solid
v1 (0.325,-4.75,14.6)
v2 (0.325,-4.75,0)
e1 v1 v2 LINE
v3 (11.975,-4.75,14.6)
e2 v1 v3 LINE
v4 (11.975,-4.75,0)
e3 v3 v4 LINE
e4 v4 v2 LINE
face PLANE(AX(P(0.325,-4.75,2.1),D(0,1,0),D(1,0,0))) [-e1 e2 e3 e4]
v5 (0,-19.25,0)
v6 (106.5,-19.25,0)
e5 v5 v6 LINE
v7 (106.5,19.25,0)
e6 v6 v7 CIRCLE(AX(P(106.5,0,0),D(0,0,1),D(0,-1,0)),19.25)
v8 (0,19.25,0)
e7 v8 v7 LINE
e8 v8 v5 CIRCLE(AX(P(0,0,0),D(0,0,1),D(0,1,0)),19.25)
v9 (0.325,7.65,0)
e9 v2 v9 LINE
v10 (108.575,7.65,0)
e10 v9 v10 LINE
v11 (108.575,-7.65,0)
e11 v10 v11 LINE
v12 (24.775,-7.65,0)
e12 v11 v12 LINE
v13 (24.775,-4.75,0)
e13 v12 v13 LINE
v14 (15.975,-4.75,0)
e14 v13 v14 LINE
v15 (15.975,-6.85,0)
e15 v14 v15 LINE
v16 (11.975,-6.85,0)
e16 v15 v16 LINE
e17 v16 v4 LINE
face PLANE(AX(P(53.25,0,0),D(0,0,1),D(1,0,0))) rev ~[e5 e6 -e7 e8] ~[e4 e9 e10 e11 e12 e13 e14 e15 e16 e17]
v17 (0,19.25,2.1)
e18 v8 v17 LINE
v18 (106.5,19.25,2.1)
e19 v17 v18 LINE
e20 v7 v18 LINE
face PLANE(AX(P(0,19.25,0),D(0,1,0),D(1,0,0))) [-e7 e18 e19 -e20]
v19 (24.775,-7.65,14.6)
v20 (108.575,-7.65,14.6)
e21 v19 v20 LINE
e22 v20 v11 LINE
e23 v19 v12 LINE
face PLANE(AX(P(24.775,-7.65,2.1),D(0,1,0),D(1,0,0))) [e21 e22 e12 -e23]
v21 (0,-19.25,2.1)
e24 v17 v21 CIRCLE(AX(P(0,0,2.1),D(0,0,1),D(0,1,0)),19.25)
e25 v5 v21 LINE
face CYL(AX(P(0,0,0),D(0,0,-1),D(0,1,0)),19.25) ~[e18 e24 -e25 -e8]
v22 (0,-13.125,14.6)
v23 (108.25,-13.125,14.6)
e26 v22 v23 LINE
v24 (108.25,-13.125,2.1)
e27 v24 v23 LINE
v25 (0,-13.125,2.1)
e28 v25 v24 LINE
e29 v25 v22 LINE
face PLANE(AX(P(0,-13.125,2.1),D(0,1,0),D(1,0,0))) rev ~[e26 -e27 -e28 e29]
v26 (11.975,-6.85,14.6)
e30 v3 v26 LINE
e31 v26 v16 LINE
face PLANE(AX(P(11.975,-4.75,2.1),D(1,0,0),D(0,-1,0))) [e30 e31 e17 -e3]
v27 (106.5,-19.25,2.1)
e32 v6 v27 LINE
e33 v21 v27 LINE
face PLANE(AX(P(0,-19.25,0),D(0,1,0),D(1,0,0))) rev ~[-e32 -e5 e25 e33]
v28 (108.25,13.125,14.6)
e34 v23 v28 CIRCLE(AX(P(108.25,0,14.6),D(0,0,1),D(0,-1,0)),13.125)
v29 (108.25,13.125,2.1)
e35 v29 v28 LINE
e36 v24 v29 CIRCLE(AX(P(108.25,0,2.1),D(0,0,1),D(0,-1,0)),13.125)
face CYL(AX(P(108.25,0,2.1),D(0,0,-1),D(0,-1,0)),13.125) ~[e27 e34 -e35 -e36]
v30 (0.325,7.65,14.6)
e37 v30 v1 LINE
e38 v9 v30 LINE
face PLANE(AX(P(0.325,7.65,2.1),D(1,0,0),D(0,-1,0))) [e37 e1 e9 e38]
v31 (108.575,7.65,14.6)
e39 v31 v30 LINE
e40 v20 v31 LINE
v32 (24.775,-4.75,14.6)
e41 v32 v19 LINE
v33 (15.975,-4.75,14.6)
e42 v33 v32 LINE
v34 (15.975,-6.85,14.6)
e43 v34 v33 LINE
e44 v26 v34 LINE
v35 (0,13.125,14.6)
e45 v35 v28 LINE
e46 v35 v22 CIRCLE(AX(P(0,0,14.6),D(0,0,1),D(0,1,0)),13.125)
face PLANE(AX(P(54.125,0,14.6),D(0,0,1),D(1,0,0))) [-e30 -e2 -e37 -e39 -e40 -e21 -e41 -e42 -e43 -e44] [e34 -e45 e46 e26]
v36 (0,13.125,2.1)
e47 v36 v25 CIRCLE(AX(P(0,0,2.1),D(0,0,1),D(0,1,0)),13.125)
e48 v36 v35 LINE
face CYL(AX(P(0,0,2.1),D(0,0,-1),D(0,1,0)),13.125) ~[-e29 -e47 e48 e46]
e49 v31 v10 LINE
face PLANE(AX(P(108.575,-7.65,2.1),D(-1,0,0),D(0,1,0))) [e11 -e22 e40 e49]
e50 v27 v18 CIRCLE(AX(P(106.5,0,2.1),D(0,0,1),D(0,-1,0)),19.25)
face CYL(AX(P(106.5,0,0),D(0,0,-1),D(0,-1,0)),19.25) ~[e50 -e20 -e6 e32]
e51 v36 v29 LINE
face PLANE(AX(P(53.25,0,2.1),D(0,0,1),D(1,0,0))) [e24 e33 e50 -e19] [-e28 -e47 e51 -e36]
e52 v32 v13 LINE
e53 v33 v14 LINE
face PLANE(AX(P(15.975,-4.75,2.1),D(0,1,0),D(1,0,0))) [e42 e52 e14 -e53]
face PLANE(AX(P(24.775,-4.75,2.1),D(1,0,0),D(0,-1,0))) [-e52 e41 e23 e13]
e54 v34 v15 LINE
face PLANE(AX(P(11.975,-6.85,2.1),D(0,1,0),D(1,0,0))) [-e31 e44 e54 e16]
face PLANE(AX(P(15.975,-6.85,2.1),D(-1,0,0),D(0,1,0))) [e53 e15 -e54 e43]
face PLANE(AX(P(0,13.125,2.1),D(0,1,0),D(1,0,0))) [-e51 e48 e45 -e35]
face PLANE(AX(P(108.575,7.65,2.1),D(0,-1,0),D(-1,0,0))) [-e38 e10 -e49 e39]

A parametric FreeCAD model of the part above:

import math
import FreeCAD as App
import Part
import Sketcher
from FreeCAD import Vector

doc = App.newDocument("Part")
params = doc.addObject("Spreadsheet::Sheet", "Params")
for row, (alias, value) in enumerate([
    ("sketch1_radius", "19.25 mm"),
    ("sketch1_width", "106.5 mm"),
    ("pad1_length", "2.1 mm"),
    ("sketch2_width", "4 mm"),
    ("sketch2_width2", "8.8 mm"),
    ("sketch2_width3", "83.8 mm"),
    ("sketch2_height", "12.4 mm"),
    ("sketch2_height2", "2.1 mm"),
    ("pocket1_length", "5 mm"),
    ("sketch3_width", "4 mm"),
    ("sketch3_width2", "83.8 mm"),
    ("sketch3_width3", "8.8 mm"),
    ("sketch3_height", "12.4 mm"),
    ("sketch3_height2", "15.3 mm"),
    ("pad2_length", "12.5 mm"),
], start=1):
    params.set(f"A{row}", alias)
    params.set(f"B{row}", "=" + value)
    params.setAlias(f"B{row}", alias)

body = doc.addObject("PartDesign::Body", "Body")

sketch1 = body.newObject("Sketcher::SketchObject", "Sketch")
sketch1.AttachmentSupport = (doc.getObject("XY_Plane"), [""])
sketch1.MapMode = "FlatFace"
sketch1.addGeometry([
    Part.ArcOfCircle(Part.Circle(Vector(0, 0, 0), Vector(0, 0, 1), 19), math.radians(90), math.radians(270)),
    Part.LineSegment(Vector(0, -19, 0), Vector(106, -19, 0)),
    Part.ArcOfCircle(Part.Circle(Vector(106, 0, 0), Vector(0, 0, 1), 19), math.radians(-90), math.radians(90)),
    Part.LineSegment(Vector(106, 19, 0), Vector(0, 19, 0)),
], False)
sketch1.addConstraint([
    Sketcher.Constraint("Tangent", 0, 2, 1, 1),
    Sketcher.Constraint("Tangent", 1, 2, 2, 1),
    Sketcher.Constraint("Tangent", 2, 2, 3, 1),
    Sketcher.Constraint("Tangent", 3, 2, 0, 1),
    Sketcher.Constraint("Horizontal", 1),
    Sketcher.Constraint("Horizontal", 3),
    Sketcher.Constraint("Coincident", 0, 3, -1, 1),
    Sketcher.Constraint("Radius", 0, 19.25),
    Sketcher.Constraint("DistanceX", 1, 1, 1, 2, 106.5),
])
sketch1.setExpression("Constraints[7]", "Params.sketch1_radius")
sketch1.setExpression("Constraints[8]", "Params.sketch1_width")
pad1 = body.newObject("PartDesign::Pad", "Pad")
pad1.Profile = sketch1
pad1.setExpression("Length", "Params.pad1_length")

sketch2 = body.newObject("Sketcher::SketchObject", "Sketch001")
sketch2.AttachmentSupport = (doc.getObject("XY_Plane"), [""])
sketch2.MapMode = "FlatFace"
sketch2.AttachmentOffset = App.Placement(Vector(0, 0, 2.1), App.Rotation())
sketch2.addGeometry([
    Part.LineSegment(Vector(108.6, 7.7, 0), Vector(0.3, 7.7, 0)),
    Part.LineSegment(Vector(0.3, 7.7, 0), Vector(0.3, -4.8, 0)),
    Part.LineSegment(Vector(0.3, -4.8, 0), Vector(12, -4.8, 0)),
    Part.LineSegment(Vector(12, -4.8, 0), Vector(12, -6.8, 0)),
    Part.LineSegment(Vector(12, -6.8, 0), Vector(16, -6.8, 0)),
    Part.LineSegment(Vector(16, -6.8, 0), Vector(16, -4.8, 0)),
    Part.LineSegment(Vector(16, -4.8, 0), Vector(24.8, -4.8, 0)),
    Part.LineSegment(Vector(24.8, -4.8, 0), Vector(24.8, -7.7, 0)),
    Part.LineSegment(Vector(24.8, -7.7, 0), Vector(108.6, -7.7, 0)),
    Part.LineSegment(Vector(108.6, -7.7, 0), Vector(108.6, 7.7, 0)),
], False)
sketch2.addConstraint([
    Sketcher.Constraint("Coincident", 0, 2, 1, 1),
    Sketcher.Constraint("Coincident", 1, 2, 2, 1),
    Sketcher.Constraint("Coincident", 2, 2, 3, 1),
    Sketcher.Constraint("Coincident", 3, 2, 4, 1),
    Sketcher.Constraint("Coincident", 4, 2, 5, 1),
    Sketcher.Constraint("Coincident", 5, 2, 6, 1),
    Sketcher.Constraint("Coincident", 6, 2, 7, 1),
    Sketcher.Constraint("Coincident", 7, 2, 8, 1),
    Sketcher.Constraint("Coincident", 8, 2, 9, 1),
    Sketcher.Constraint("Coincident", 9, 2, 0, 1),
    Sketcher.Constraint("Horizontal", 0),
    Sketcher.Constraint("Vertical", 1),
    Sketcher.Constraint("Horizontal", 2),
    Sketcher.Constraint("Vertical", 3),
    Sketcher.Constraint("Horizontal", 4),
    Sketcher.Constraint("Vertical", 5),
    Sketcher.Constraint("Horizontal", 6),
    Sketcher.Constraint("Vertical", 7),
    Sketcher.Constraint("Horizontal", 8),
    Sketcher.Constraint("Vertical", 9),
    Sketcher.Constraint("Horizontal", 2, 2, 5, 2),
    Sketcher.Constraint("DistanceX", 4, 1, 4, 2, 4.0),
    Sketcher.Constraint("DistanceX", 6, 1, 6, 2, 8.8),
    Sketcher.Constraint("DistanceX", 8, 1, 8, 2, 83.8),
    Sketcher.Constraint("DistanceY", 1, 2, 1, 1, 12.4),
    Sketcher.Constraint("DistanceY", 3, 2, 3, 1, 2.1),
    Sketcher.Constraint("DistanceY", 7, 2, 7, 1, 2.9),
    Sketcher.Constraint("DistanceX", 0, 2, 0, 1, 108.25),
    Sketcher.Constraint("DistanceY", -1, 1, 0, 2, 7.65),
    Sketcher.Constraint("DistanceX", -1, 1, 0, 2, 0.325),
])
sketch2.setExpression("Constraints[21]", "Params.sketch2_width")
sketch2.setExpression("Constraints[22]", "Params.sketch2_width2")
sketch2.setExpression("Constraints[23]", "Params.sketch2_width3")
sketch2.setExpression("Constraints[24]", "Params.sketch2_height")
sketch2.setExpression("Constraints[25]", "Params.sketch2_height2")
pocket1 = body.newObject("PartDesign::Pocket", "Pocket")
pocket1.Profile = sketch2
pocket1.setExpression("Length", "Params.pocket1_length")

sketch3 = body.newObject("Sketcher::SketchObject", "Sketch002")
sketch3.AttachmentSupport = (doc.getObject("XY_Plane"), [""])
sketch3.MapMode = "FlatFace"
sketch3.AttachmentOffset = App.Placement(Vector(0, 0, 2.1), App.Rotation())
sketch3.addGeometry([
    Part.ArcOfCircle(Part.Circle(Vector(0, 0, 0), Vector(0, 0, 1), 13.1), math.radians(90), math.radians(270)),
    Part.LineSegment(Vector(0, -13.1, 0), Vector(108.2, -13.1, 0)),
    Part.ArcOfCircle(Part.Circle(Vector(108.2, 0, 0), Vector(0, 0, 1), 13.1), math.radians(-90), math.radians(90)),
    Part.LineSegment(Vector(108.2, 13.1, 0), Vector(0, 13.1, 0)),
    Part.LineSegment(Vector(0.3, -4.8, 0), Vector(0.3, 7.7, 0)),
    Part.LineSegment(Vector(0.3, 7.7, 0), Vector(108.6, 7.7, 0)),
    Part.LineSegment(Vector(108.6, 7.7, 0), Vector(108.6, -7.7, 0)),
    Part.LineSegment(Vector(108.6, -7.7, 0), Vector(24.8, -7.7, 0)),
    Part.LineSegment(Vector(24.8, -7.7, 0), Vector(24.8, -4.8, 0)),
    Part.LineSegment(Vector(24.8, -4.8, 0), Vector(16, -4.8, 0)),
    Part.LineSegment(Vector(16, -4.8, 0), Vector(16, -6.8, 0)),
    Part.LineSegment(Vector(16, -6.8, 0), Vector(12, -6.8, 0)),
    Part.LineSegment(Vector(12, -6.8, 0), Vector(12, -4.8, 0)),
    Part.LineSegment(Vector(12, -4.8, 0), Vector(0.3, -4.8, 0)),
], False)
sketch3.addConstraint([
    Sketcher.Constraint("Tangent", 0, 2, 1, 1),
    Sketcher.Constraint("Tangent", 1, 2, 2, 1),
    Sketcher.Constraint("Tangent", 2, 2, 3, 1),
    Sketcher.Constraint("Tangent", 3, 2, 0, 1),
    Sketcher.Constraint("Coincident", 4, 2, 5, 1),
    Sketcher.Constraint("Coincident", 5, 2, 6, 1),
    Sketcher.Constraint("Coincident", 6, 2, 7, 1),
    Sketcher.Constraint("Coincident", 7, 2, 8, 1),
    Sketcher.Constraint("Coincident", 8, 2, 9, 1),
    Sketcher.Constraint("Coincident", 9, 2, 10, 1),
    Sketcher.Constraint("Coincident", 10, 2, 11, 1),
    Sketcher.Constraint("Coincident", 11, 2, 12, 1),
    Sketcher.Constraint("Coincident", 12, 2, 13, 1),
    Sketcher.Constraint("Coincident", 13, 2, 4, 1),
    Sketcher.Constraint("Horizontal", 1),
    Sketcher.Constraint("Horizontal", 3),
    Sketcher.Constraint("Vertical", 4),
    Sketcher.Constraint("Horizontal", 5),
    Sketcher.Constraint("Vertical", 6),
    Sketcher.Constraint("Horizontal", 7),
    Sketcher.Constraint("Vertical", 8),
    Sketcher.Constraint("Horizontal", 9),
    Sketcher.Constraint("Vertical", 10),
    Sketcher.Constraint("Horizontal", 11),
    Sketcher.Constraint("Vertical", 12),
    Sketcher.Constraint("Horizontal", 13),
    Sketcher.Constraint("Coincident", 0, 3, -1, 1),
    Sketcher.Constraint("Horizontal", 9, 2, 12, 2),
    Sketcher.Constraint("Equal", 3, 5),
    Sketcher.Constraint("DistanceX", 11, 2, 11, 1, 4.0),
    Sketcher.Constraint("DistanceX", 7, 2, 7, 1, 83.8),
    Sketcher.Constraint("DistanceX", 9, 2, 9, 1, 8.8),
    Sketcher.Constraint("DistanceY", 4, 1, 4, 2, 12.4),
    Sketcher.Constraint("DistanceY", 6, 2, 6, 1, 15.3),
    Sketcher.Constraint("DistanceY", 10, 2, 10, 1, 2.1),
    Sketcher.Constraint("Radius", 0, 13.125),
    Sketcher.Constraint("DistanceX", 1, 1, 1, 2, 108.25),
    Sketcher.Constraint("DistanceY", -1, 1, 4, 2, 7.65),
    Sketcher.Constraint("DistanceX", -1, 1, 4, 2, 0.325),
])
sketch3.setExpression("Constraints[29]", "Params.sketch3_width")
sketch3.setExpression("Constraints[30]", "Params.sketch3_width2")
sketch3.setExpression("Constraints[31]", "Params.sketch3_width3")
sketch3.setExpression("Constraints[32]", "Params.sketch3_height")
sketch3.setExpression("Constraints[33]", "Params.sketch3_height2")
pad2 = body.newObject("PartDesign::Pad", "Pad001")
pad2.Profile = sketch3
pad2.setExpression("Length", "Params.pad2_length")

doc.recompute()
